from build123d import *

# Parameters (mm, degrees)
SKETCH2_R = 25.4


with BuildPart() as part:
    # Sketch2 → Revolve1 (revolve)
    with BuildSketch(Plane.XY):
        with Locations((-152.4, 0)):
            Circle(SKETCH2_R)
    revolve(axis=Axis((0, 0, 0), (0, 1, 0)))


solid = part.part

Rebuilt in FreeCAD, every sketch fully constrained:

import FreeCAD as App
import Part
import Sketcher
from FreeCAD import Vector
Q = App.Units.Quantity

doc = App.newDocument("Part")
body = doc.addObject("PartDesign::Body", "Body")

sketch1 = doc.addObject("Sketcher::SketchObject", "Sketch")
body.addObject(sketch1)
sketch1.AttachmentSupport = (doc.XY_Plane, [""])
sketch1.MapMode = "FlatFace"
sketch1.addGeometry(Part.Circle(Vector(-152, 0, 0), Vector(0, 0, 1), 25), False)
sketch1.addConstraint(Sketcher.Constraint("PointOnObject", 0, 3, -1))
sketch1.addConstraint(Sketcher.Constraint("Diameter", 0, Q("2 in")))
sketch1.addConstraint(Sketcher.Constraint("DistanceX", 0, 3, -1, 1, Q("6 in")))
revolution = doc.addObject("PartDesign::Revolution", "Revolution")
body.addObject(revolution)
revolution.Profile = sketch1
revolution.ReferenceAxis = (sketch1, ["V_Axis"])
revolution.Angle = 360

doc.recompute()
